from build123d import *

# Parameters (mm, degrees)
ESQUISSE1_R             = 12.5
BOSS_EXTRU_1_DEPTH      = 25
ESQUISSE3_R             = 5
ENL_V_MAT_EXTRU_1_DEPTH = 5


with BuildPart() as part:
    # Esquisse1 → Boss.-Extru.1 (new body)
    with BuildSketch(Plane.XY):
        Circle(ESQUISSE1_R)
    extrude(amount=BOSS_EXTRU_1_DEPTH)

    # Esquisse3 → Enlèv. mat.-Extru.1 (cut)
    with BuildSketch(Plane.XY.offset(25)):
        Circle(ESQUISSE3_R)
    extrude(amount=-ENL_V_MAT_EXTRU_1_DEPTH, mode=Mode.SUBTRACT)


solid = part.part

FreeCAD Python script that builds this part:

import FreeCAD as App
import Part
import Sketcher

V = App.Vector
Q = App.Units.Quantity

doc = App.newDocument("Part")
body = doc.addObject("PartDesign::Body", "Body")

sketch1 = doc.addObject("Sketcher::SketchObject", "Sketch")
body.addObject(sketch1)
sketch1.AttachmentSupport = (doc.XY_Plane, [""])
sketch1.MapMode = "FlatFace"
sketch1.addGeometry(Part.Circle(V(0, 0, 0), V(0, 0, 1), 12.5), False)
sketch1.addConstraint(Sketcher.Constraint("Coincident", 0, 3, -1, 1))
sketch1.addConstraint(Sketcher.Constraint("Diameter", 0, Q("25 mm")))
pad1 = doc.addObject("PartDesign::Pad", "Pad")
body.addObject(pad1)
pad1.Profile = sketch1
pad1.Length = 25

sketch2 = doc.addObject("Sketcher::SketchObject", "Sketch001")
body.addObject(sketch2)
sketch2.AttachmentSupport = (doc.XY_Plane, [""])
sketch2.MapMode = "FlatFace"
sketch2.AttachmentOffset = App.Placement(V(0, 0, 25), App.Rotation())
sketch2.addGeometry(Part.Circle(V(0, 0, 0), V(0, 0, 1), 5), False)
sketch2.addConstraint(Sketcher.Constraint("Coincident", 0, 3, -1, 1))
sketch2.addConstraint(Sketcher.Constraint("Diameter", 0, Q("10 mm")))
pocket1 = doc.addObject("PartDesign::Pocket", "Pocket")
body.addObject(pocket1)
pocket1.Profile = sketch2
pocket1.Length = 5

doc.recompute()
